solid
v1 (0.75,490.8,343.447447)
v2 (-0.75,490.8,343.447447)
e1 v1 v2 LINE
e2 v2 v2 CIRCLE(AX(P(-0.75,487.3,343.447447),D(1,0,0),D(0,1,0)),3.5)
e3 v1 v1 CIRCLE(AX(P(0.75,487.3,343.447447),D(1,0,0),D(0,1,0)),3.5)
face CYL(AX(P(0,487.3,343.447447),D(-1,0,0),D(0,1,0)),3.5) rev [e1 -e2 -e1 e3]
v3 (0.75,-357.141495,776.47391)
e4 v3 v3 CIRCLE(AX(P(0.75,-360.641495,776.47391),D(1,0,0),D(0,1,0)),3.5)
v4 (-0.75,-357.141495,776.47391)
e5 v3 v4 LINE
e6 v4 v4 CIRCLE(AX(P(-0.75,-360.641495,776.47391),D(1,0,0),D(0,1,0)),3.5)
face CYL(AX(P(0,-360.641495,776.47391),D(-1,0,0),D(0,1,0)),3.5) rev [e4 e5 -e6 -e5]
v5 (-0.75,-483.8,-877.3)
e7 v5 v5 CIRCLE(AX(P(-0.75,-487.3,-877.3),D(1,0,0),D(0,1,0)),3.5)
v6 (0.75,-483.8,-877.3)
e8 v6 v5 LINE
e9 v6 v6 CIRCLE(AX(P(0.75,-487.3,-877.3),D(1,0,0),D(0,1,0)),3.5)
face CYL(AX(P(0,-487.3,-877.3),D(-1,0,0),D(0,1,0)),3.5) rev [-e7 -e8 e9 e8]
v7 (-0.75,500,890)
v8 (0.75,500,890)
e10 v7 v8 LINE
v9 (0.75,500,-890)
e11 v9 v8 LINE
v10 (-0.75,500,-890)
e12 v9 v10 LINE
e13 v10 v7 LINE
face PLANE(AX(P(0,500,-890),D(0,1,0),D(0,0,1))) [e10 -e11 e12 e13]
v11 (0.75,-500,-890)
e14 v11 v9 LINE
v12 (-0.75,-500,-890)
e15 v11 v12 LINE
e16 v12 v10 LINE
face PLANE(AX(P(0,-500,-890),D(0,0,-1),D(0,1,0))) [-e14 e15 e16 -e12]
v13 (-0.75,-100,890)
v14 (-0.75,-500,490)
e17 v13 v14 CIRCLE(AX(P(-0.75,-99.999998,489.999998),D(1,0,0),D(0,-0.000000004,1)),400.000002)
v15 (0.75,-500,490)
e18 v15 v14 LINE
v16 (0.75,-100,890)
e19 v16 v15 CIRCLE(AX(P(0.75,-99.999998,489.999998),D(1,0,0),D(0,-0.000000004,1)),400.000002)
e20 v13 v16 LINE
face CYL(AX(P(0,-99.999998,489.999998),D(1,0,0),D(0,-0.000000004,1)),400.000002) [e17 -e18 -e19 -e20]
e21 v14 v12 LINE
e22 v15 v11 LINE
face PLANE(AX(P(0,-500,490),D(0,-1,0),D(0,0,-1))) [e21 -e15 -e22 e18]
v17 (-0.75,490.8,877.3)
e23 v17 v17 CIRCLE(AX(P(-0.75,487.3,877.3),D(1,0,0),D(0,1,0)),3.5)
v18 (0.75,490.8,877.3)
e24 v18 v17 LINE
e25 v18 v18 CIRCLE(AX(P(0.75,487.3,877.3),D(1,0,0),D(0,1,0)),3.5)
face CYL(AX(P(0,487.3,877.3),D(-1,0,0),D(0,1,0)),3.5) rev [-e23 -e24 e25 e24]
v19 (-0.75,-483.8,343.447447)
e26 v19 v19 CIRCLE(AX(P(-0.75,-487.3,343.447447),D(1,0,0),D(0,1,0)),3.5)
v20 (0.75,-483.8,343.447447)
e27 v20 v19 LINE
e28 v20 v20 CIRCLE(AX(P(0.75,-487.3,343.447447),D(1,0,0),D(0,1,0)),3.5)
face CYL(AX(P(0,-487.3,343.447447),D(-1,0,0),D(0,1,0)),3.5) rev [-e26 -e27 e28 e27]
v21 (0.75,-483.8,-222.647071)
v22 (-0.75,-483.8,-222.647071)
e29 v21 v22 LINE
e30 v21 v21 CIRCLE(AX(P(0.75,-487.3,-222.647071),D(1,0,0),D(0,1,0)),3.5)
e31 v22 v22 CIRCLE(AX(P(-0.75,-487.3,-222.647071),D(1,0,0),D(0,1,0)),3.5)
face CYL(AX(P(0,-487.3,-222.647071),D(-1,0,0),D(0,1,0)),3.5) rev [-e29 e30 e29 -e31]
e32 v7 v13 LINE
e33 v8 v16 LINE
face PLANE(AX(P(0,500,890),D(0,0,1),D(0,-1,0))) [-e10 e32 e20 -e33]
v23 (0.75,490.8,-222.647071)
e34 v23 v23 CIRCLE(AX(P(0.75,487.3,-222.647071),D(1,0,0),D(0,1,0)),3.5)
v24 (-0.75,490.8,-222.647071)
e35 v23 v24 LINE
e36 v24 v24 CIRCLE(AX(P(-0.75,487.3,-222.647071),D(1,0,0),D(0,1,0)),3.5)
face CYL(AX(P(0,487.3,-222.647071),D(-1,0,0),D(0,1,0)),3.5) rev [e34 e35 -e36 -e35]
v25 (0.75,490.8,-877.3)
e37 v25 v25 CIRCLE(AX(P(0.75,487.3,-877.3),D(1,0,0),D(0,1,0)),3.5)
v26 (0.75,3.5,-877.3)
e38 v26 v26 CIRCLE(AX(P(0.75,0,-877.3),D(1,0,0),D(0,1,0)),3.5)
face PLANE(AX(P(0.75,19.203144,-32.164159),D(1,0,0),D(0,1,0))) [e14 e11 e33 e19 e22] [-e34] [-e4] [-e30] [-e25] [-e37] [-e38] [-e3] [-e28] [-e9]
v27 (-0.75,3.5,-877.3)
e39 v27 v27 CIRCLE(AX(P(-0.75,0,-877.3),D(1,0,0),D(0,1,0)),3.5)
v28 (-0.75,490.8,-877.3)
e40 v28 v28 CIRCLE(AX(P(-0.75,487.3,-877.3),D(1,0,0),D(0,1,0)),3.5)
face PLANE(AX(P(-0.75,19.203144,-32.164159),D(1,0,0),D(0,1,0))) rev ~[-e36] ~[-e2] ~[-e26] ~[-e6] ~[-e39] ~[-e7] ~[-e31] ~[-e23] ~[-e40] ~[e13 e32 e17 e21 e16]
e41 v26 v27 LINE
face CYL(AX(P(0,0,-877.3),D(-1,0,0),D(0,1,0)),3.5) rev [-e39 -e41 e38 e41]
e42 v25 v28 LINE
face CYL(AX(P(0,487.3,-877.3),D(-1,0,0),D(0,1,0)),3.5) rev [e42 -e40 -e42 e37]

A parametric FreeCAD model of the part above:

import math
import FreeCAD as App
import Part
import Sketcher
from FreeCAD import Vector

doc = App.newDocument("Part")
body = doc.addObject("PartDesign::Body", "Body")

sketch1 = body.newObject("Sketcher::SketchObject", "Sketch")
sketch1.AttachmentSupport = (doc.getObject("YZ_Plane"), [""])
sketch1.MapMode = "FlatFace"
sketch1.addGeometry([
    Part.LineSegment(Vector(500, -890, 0), Vector(500, 890, 0)),
    Part.LineSegment(Vector(500, 890, 0), Vector(-100, 890, 0)),
    Part.ArcOfCircle(Part.Circle(Vector(-100, 490, 0), Vector(0, 0, 1), 400), math.radians(90), math.radians(180)),
    Part.LineSegment(Vector(-500, 490, 0), Vector(-500, -890, 0)),
    Part.LineSegment(Vector(-500, -890, 0), Vector(500, -890, 0)),
    Part.Circle(Vector(-487.3, -877.3, 0), Vector(0, 0, 1), 3.5),
    Part.Circle(Vector(-487.3, -222.6, 0), Vector(0, 0, 1), 3.5),
    Part.Circle(Vector(0, -877.3, 0), Vector(0, 0, 1), 3.5),
    Part.Circle(Vector(487.3, -877.3, 0), Vector(0, 0, 1), 3.5),
    Part.Circle(Vector(487.3, -222.6, 0), Vector(0, 0, 1), 3.5),
    Part.Circle(Vector(-487.3, 343.4, 0), Vector(0, 0, 1), 3.5),
    Part.Circle(Vector(-360.6, 776.5, 0), Vector(0, 0, 1), 3.5),
    Part.Circle(Vector(487.3, 343.4, 0), Vector(0, 0, 1), 3.5),
    Part.Circle(Vector(487.3, 877.3, 0), Vector(0, 0, 1), 3.5),
], False)
sketch1.addConstraint([
    Sketcher.Constraint("Coincident", 0, 2, 1, 1),
    Sketcher.Constraint("Tangent", 1, 2, 2, 1),
    Sketcher.Constraint("Tangent", 2, 2, 3, 1),
    Sketcher.Constraint("Coincident", 3, 2, 4, 1),
    Sketcher.Constraint("Coincident", 4, 2, 0, 1),
    Sketcher.Constraint("Vertical", 0),
    Sketcher.Constraint("Horizontal", 1),
    Sketcher.Constraint("Vertical", 3),
    Sketcher.Constraint("Horizontal", 4),
    Sketcher.Constraint("Equal", 5, 6),
    Sketcher.Constraint("Equal", 6, 7),
    Sketcher.Constraint("Equal", 7, 8),
    Sketcher.Constraint("Equal", 8, 9),
    Sketcher.Constraint("Equal", 9, 10),
    Sketcher.Constraint("Equal", 10, 11),
    Sketcher.Constraint("Equal", 11, 12),
    Sketcher.Constraint("Equal", 12, 13),
    Sketcher.Constraint("Symmetric", 5, 3, 13, 3, -1, 1),
    Sketcher.Constraint("Symmetric", 0, 2, 3, 2, -1, 1),
    Sketcher.Constraint("Symmetric", 5, 3, 8, 3, -2),
    Sketcher.Constraint("Symmetric", 6, 3, 9, 3, -2),
    Sketcher.Constraint("Symmetric", 10, 3, 12, 3, -2),
    Sketcher.Constraint("PointOnObject", 7, 3, -2),
    Sketcher.Constraint("Horizontal", 5, 3, 7, 3),
    Sketcher.Constraint("Vertical", 5, 3, 6, 3),
    Sketcher.Constraint("Vertical", 6, 3, 10, 3),
    Sketcher.Constraint("Diameter", 5, 7.0),
    Sketcher.Constraint("Radius", 2, 400.000002),
    Sketcher.Constraint("DistanceX", 1, 2, 1, 1, 600.0),
    Sketcher.Constraint("DistanceY", 0, 1, 0, 2, 1780.0),
    Sketcher.Constraint("DistanceX", 5, 3, -1, 1, 487.3),
    Sketcher.Constraint("DistanceY", 5, 3, -1, 1, 877.3),
    Sketcher.Constraint("DistanceY", 6, 3, -1, 1, 222.647071),
    Sketcher.Constraint("DistanceY", -1, 1, 11, 3, 776.47391),
    Sketcher.Constraint("DistanceY", 10, 3, 2, 3, 146.552551),
    Sketcher.Constraint("DistanceX", 11, 3, -1, 1, 360.641495),
])
pad1 = body.newObject("PartDesign::Pad", "Pad")
pad1.Profile = sketch1
pad1.Length = 1.5
pad1.Midplane = True

doc.recompute()
